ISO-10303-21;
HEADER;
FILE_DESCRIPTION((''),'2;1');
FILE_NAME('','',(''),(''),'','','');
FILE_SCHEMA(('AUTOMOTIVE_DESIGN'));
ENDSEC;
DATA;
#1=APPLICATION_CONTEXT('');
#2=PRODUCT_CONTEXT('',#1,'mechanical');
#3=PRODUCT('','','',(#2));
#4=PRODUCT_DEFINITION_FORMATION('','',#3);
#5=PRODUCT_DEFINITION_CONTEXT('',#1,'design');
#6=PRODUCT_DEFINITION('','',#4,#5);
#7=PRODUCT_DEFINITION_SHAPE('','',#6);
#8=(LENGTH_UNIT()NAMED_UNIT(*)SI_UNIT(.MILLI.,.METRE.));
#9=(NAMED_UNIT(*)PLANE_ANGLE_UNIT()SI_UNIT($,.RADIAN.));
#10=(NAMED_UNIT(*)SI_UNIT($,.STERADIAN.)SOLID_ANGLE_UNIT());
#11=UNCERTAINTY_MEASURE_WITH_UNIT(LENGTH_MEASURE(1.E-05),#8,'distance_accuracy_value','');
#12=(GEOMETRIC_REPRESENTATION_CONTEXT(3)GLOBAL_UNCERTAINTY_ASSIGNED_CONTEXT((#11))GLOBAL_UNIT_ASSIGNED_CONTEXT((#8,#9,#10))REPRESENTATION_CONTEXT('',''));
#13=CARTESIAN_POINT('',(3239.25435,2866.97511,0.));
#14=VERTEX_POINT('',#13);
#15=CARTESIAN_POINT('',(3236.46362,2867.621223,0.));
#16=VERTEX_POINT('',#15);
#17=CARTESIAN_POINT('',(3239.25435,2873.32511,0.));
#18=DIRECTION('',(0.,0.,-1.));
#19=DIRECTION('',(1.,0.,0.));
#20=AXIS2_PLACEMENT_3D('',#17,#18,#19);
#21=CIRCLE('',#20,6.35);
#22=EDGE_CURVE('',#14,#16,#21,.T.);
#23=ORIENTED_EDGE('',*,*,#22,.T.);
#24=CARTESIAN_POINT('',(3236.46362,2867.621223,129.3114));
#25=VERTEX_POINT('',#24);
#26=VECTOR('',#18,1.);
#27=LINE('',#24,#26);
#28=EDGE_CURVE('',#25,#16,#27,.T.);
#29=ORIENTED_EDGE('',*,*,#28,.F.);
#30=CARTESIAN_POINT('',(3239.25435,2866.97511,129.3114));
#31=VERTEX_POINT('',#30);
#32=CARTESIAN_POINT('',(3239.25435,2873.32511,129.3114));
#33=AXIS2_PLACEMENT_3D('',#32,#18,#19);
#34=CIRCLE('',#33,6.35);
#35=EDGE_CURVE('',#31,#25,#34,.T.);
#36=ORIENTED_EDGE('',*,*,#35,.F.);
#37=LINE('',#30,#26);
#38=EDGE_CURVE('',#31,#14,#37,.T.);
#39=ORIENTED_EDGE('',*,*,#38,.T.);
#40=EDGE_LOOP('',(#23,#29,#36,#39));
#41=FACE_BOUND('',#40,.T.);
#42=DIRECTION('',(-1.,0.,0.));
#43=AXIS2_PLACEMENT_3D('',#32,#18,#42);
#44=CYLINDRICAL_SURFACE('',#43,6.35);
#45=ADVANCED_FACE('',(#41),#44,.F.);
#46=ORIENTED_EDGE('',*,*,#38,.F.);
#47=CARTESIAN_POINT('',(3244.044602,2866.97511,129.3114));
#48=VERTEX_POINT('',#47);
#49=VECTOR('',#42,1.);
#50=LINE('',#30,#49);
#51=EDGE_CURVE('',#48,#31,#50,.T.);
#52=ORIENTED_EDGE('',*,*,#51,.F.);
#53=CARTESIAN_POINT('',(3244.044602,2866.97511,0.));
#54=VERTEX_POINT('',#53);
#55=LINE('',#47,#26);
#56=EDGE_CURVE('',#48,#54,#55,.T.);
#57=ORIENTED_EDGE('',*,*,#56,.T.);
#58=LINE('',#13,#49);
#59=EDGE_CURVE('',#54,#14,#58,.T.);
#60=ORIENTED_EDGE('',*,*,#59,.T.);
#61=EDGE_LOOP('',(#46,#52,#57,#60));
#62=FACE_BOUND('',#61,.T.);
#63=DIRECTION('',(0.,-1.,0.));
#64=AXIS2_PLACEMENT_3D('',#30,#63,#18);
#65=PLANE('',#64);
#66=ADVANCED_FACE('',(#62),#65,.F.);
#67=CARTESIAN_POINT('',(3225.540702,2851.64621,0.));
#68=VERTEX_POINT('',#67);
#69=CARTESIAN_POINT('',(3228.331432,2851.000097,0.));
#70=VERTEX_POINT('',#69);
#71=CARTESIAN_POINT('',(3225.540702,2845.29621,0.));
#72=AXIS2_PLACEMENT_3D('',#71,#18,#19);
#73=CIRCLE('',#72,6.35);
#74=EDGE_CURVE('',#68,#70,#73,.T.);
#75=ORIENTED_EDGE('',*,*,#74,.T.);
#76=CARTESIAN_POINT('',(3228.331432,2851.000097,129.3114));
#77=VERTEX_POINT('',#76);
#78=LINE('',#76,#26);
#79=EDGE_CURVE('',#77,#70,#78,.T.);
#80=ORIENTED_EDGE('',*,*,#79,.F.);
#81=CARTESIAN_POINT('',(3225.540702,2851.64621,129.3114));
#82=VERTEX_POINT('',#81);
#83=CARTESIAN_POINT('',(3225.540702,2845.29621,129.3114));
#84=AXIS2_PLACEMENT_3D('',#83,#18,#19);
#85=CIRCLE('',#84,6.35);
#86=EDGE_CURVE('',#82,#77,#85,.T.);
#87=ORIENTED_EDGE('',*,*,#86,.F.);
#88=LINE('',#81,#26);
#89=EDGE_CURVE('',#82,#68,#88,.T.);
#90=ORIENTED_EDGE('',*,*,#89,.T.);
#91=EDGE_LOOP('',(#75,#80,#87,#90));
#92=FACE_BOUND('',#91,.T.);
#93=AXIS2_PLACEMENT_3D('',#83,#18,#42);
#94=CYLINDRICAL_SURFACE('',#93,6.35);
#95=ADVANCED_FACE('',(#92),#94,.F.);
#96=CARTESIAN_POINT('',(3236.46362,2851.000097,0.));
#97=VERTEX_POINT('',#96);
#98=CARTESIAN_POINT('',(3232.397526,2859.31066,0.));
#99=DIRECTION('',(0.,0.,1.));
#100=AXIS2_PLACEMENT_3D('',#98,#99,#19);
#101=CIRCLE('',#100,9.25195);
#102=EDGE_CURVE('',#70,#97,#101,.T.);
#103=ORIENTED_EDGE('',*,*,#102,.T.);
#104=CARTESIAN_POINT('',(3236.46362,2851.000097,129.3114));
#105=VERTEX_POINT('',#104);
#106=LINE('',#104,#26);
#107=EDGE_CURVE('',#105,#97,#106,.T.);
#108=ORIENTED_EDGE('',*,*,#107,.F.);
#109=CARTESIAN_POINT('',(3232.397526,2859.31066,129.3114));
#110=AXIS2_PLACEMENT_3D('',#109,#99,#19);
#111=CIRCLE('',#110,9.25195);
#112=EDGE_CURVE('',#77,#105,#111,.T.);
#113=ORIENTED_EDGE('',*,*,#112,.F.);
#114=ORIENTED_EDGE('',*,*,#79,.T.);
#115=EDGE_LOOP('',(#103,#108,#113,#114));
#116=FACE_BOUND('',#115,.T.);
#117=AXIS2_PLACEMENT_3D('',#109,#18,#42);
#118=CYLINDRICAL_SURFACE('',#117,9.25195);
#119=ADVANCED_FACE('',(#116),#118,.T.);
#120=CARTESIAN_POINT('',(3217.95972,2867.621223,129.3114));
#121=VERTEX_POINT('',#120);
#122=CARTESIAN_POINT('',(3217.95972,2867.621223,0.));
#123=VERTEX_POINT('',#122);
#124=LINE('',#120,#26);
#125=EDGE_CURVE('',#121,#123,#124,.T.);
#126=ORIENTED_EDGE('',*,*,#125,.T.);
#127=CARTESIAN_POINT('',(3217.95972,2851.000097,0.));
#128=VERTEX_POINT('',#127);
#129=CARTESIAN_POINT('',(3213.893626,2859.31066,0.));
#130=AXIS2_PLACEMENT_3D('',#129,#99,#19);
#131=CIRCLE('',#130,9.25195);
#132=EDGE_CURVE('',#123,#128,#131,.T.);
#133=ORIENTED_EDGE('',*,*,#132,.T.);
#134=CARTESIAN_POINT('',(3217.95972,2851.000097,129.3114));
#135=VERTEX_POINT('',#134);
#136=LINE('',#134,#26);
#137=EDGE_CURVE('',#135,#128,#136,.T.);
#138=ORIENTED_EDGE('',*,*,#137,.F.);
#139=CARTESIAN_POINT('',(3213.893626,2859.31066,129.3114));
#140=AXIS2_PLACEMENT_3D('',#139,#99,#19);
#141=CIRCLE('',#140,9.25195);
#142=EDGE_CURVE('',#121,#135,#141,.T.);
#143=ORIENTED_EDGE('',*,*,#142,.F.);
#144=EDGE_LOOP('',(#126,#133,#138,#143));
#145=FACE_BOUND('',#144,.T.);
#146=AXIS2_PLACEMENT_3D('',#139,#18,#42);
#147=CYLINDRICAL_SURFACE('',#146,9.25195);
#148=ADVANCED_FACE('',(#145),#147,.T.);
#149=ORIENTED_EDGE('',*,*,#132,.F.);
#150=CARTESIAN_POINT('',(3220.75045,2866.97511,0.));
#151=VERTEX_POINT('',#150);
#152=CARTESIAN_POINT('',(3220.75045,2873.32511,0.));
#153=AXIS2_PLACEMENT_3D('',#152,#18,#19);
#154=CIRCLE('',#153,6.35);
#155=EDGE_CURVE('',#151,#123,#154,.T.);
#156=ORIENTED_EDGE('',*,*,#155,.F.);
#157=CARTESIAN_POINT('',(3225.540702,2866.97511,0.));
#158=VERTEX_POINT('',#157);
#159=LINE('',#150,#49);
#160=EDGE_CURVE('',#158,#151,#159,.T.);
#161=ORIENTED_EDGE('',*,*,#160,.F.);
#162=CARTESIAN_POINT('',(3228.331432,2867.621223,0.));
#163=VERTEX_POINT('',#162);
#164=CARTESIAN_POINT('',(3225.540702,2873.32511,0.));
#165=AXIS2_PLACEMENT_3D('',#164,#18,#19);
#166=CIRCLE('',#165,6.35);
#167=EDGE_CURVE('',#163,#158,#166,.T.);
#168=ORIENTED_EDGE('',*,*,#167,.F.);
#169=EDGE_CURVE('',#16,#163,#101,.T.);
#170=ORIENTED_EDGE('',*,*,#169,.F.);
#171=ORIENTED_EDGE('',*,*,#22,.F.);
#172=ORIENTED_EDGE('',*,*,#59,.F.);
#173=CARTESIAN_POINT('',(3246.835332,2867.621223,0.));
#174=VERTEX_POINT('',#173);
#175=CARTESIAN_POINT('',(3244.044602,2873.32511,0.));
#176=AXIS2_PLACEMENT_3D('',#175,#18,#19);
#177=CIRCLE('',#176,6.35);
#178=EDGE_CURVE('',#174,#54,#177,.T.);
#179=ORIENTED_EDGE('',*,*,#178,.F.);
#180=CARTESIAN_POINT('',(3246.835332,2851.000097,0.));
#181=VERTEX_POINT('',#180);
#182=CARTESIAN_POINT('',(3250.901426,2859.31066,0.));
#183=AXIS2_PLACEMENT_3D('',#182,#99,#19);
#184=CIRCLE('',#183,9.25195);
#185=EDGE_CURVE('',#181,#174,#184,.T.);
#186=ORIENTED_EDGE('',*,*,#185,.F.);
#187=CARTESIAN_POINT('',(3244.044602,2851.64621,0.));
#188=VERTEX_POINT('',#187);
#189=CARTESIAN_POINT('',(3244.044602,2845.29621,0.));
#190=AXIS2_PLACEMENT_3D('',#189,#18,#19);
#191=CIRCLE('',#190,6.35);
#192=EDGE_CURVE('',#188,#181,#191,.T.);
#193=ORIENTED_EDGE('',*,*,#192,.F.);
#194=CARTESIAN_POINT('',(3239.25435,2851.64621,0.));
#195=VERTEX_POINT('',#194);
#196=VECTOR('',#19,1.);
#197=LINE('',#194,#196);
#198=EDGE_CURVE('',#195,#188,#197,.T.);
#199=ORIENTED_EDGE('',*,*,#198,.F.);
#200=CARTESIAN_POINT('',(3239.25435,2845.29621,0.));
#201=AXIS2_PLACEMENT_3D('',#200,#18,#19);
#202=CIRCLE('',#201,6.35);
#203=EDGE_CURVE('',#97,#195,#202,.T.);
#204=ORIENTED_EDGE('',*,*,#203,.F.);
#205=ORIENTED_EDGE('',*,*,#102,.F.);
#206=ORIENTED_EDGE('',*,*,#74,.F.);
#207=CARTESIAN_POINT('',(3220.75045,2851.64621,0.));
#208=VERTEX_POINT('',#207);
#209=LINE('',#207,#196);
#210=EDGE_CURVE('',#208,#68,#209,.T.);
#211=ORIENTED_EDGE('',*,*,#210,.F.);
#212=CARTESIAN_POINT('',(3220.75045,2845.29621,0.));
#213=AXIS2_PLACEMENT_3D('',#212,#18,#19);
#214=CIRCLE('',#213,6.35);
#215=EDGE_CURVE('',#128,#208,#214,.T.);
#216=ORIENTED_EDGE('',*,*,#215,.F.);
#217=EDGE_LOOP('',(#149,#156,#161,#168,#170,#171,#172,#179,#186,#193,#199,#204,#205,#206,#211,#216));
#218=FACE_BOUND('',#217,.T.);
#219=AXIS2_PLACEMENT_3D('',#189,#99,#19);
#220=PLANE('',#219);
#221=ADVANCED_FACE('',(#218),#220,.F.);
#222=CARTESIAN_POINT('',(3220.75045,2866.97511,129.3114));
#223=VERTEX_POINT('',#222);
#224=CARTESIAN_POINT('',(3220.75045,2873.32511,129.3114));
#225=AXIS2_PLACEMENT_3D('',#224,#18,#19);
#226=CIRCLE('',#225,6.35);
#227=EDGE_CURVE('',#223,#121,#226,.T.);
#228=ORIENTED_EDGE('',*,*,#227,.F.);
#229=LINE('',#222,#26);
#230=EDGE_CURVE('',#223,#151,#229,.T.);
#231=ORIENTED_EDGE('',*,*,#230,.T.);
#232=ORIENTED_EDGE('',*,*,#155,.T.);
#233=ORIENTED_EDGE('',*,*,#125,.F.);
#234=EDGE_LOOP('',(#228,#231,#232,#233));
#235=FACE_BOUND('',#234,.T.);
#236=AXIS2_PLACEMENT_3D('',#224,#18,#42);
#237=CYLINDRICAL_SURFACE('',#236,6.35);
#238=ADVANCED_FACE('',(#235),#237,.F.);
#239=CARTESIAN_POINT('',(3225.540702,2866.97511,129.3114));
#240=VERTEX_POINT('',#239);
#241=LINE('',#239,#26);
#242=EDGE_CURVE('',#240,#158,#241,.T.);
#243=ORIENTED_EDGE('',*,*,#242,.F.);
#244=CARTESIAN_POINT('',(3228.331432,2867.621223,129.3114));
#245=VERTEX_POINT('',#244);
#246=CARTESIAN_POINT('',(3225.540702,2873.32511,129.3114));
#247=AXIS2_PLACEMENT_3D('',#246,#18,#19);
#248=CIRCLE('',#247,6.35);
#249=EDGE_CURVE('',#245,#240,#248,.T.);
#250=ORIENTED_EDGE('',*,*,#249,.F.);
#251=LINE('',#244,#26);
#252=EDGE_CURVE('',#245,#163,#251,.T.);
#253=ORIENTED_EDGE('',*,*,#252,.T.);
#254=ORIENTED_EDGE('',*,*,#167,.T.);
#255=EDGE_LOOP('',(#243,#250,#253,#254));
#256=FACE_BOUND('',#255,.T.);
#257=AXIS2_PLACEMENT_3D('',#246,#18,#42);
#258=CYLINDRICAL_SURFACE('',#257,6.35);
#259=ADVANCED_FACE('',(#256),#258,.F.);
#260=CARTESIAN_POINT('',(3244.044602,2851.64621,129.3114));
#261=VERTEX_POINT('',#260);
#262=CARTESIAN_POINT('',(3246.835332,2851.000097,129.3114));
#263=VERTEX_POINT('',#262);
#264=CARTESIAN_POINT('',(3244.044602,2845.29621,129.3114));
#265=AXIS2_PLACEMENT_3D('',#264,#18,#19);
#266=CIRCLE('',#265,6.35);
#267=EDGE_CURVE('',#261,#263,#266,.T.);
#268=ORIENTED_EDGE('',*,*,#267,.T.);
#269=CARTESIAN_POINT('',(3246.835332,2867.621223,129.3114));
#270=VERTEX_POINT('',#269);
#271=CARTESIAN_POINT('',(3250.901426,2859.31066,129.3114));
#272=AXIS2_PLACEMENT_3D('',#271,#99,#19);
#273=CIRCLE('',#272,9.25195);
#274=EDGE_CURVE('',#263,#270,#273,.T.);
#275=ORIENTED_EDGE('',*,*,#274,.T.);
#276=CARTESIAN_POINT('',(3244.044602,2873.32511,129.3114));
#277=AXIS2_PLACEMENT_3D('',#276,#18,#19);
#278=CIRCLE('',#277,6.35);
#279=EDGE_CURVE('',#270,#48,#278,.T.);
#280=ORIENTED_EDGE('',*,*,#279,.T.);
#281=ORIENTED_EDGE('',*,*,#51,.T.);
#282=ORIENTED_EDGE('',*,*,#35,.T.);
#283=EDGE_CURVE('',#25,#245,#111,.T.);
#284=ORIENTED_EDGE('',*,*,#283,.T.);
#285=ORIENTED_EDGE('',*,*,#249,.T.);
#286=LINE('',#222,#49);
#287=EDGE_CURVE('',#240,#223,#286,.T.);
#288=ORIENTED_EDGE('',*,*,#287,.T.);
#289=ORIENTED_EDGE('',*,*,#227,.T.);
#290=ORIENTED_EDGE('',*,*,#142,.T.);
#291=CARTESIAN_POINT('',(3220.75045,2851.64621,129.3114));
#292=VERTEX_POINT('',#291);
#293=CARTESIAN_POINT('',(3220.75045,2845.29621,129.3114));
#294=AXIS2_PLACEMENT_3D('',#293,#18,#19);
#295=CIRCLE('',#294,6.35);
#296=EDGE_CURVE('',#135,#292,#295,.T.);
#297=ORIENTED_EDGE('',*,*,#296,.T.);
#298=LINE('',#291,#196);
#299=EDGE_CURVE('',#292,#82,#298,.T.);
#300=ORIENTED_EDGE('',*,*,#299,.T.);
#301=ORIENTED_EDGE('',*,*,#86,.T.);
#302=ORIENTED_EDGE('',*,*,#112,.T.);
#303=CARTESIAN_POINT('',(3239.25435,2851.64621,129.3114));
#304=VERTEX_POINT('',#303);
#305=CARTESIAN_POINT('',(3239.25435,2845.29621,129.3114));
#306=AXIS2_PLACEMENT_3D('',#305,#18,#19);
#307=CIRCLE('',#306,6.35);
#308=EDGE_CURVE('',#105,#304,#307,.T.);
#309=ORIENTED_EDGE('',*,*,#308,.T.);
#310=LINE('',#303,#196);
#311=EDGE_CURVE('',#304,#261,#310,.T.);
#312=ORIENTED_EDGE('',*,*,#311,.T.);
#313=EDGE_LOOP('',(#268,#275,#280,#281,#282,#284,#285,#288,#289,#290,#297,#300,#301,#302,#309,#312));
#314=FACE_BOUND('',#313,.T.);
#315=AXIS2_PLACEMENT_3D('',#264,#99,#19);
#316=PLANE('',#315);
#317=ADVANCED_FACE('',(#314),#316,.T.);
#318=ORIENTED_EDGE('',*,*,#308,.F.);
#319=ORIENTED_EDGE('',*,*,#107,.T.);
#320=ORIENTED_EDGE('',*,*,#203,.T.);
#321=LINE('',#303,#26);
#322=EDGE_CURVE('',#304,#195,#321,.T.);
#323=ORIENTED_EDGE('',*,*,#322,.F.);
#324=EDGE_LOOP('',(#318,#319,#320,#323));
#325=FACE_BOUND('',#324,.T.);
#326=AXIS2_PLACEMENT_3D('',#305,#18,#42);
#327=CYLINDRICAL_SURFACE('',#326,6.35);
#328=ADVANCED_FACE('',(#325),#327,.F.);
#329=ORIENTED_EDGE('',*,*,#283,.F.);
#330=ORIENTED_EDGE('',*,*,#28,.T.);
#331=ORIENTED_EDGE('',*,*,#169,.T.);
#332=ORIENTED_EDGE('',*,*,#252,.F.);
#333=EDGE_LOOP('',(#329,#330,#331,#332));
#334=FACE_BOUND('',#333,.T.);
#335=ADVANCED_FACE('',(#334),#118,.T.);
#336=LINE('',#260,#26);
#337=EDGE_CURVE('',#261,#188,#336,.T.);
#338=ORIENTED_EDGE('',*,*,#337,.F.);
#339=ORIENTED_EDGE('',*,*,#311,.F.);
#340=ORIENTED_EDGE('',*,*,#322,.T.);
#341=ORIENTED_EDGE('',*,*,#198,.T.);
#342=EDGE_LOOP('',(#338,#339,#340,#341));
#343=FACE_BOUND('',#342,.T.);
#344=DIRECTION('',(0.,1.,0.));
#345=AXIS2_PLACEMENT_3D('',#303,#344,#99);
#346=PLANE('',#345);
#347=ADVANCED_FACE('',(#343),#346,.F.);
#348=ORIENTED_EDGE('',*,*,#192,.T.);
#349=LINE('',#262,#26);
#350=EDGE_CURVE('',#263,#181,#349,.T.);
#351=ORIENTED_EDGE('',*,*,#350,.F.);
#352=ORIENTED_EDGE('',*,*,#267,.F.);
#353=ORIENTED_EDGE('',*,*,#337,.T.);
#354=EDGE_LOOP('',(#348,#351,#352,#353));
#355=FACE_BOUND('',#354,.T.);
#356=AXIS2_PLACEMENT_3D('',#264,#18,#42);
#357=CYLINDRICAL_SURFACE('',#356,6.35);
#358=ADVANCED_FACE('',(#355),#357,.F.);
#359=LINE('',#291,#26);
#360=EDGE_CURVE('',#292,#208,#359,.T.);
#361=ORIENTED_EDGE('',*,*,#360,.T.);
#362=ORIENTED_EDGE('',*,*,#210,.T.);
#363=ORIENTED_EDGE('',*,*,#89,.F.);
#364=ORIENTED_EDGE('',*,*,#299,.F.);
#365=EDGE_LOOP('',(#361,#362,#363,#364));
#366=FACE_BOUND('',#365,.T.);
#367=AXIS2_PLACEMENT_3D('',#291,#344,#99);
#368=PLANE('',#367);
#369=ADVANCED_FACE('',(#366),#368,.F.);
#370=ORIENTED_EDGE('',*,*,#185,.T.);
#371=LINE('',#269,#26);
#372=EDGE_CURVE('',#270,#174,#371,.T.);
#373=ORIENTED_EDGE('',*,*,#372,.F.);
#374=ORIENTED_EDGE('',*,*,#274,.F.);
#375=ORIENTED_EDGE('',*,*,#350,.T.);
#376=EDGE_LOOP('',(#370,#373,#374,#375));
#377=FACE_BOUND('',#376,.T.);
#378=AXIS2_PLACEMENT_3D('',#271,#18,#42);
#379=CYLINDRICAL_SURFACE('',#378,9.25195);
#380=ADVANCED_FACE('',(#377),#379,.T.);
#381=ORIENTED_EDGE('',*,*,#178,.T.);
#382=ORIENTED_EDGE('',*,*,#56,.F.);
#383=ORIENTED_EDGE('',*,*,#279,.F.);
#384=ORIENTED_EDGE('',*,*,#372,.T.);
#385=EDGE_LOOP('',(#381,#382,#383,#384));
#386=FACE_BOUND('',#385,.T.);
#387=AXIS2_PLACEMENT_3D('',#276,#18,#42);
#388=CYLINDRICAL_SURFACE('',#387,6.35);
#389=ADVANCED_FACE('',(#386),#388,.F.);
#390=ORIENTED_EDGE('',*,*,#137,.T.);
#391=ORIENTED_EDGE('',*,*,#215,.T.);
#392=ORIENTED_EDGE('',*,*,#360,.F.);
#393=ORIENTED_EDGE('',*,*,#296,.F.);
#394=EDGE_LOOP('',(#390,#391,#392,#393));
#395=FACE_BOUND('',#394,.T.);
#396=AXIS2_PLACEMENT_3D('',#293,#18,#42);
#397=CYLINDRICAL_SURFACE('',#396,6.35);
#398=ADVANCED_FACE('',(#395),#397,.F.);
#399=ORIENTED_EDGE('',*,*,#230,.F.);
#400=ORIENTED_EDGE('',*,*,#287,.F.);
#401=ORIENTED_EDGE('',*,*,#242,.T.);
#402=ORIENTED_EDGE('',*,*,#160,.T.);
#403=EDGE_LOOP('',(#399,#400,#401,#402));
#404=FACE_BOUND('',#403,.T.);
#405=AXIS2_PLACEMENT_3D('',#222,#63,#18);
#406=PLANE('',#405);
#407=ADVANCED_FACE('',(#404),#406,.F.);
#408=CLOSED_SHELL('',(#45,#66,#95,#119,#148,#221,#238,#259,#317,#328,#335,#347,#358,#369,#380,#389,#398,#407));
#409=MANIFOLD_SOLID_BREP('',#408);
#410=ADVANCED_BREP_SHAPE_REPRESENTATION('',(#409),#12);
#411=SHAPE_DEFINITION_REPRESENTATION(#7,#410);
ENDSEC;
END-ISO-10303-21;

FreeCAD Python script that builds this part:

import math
import FreeCAD as App
import Part
import Sketcher

V = App.Vector
Q = App.Units.Quantity

doc = App.newDocument("Part")
body = doc.addObject("PartDesign::Body", "Body")

# Sketch on XY plane
sketch1 = body.newObject("Sketcher::SketchObject", "Sketch")
sketch1.AttachmentSupport = (doc.getObject("XY_Plane"), [""])
sketch1.MapMode = "FlatFace"
sketch1.addGeometry(Part.LineSegment(V(3225.540702, 2866.97511, 0), V(3220.75045, 2866.97511, 0)), False)
sketch1.addGeometry(Part.ArcOfCircle(Part.Circle(V(3220.75045, 2873.32511, 0), V(0, 0, 1), 6.35), math.radians(-116.071031), math.radians(-90)), False)
sketch1.addGeometry(Part.ArcOfCircle(Part.Circle(V(3213.893626, 2859.31066, 0), V(0, 0, 1), 9.25195), math.radians(63.928969), math.radians(296.071031)), False)
sketch1.addGeometry(Part.ArcOfCircle(Part.Circle(V(3220.75045, 2845.29621, 0), V(0, 0, 1), 6.35), math.radians(90), math.radians(116.071031)), False)
sketch1.addGeometry(Part.LineSegment(V(3220.75045, 2851.64621, 0), V(3225.540702, 2851.64621, 0)), False)
sketch1.addGeometry(Part.ArcOfCircle(Part.Circle(V(3225.540702, 2845.29621, 0), V(0, 0, 1), 6.35), math.radians(63.928969), math.radians(90)), False)
sketch1.addGeometry(Part.ArcOfCircle(Part.Circle(V(3232.397526, 2859.31066, 0), V(0, 0, 1), 9.25195), math.radians(-116.071031), math.radians(-63.928969)), False)
sketch1.addGeometry(Part.ArcOfCircle(Part.Circle(V(3239.25435, 2845.29621, 0), V(0, 0, 1), 6.35), math.radians(90), math.radians(116.071031)), False)
sketch1.addGeometry(Part.LineSegment(V(3239.25435, 2851.64621, 0), V(3244.044602, 2851.64621, 0)), False)
sketch1.addGeometry(Part.ArcOfCircle(Part.Circle(V(3244.044602, 2845.29621, 0), V(0, 0, 1), 6.35), math.radians(63.928969), math.radians(90)), False)
sketch1.addGeometry(Part.ArcOfCircle(Part.Circle(V(3250.901426, 2859.31066, 0), V(0, 0, 1), 9.25195), math.radians(-116.071031), math.radians(116.071031)), False)
sketch1.addGeometry(Part.ArcOfCircle(Part.Circle(V(3244.044602, 2873.32511, 0), V(0, 0, 1), 6.35), math.radians(-90), math.radians(-63.928969)), False)
sketch1.addGeometry(Part.LineSegment(V(3244.044602, 2866.97511, 0), V(3239.25435, 2866.97511, 0)), False)
sketch1.addGeometry(Part.ArcOfCircle(Part.Circle(V(3239.25435, 2873.32511, 0), V(0, 0, 1), 6.35), math.radians(-116.071031), math.radians(-90)), False)
sketch1.addGeometry(Part.ArcOfCircle(Part.Circle(V(3232.397526, 2859.31066, 0), V(0, 0, 1), 9.25195), math.radians(63.928969), math.radians(116.071031)), False)
sketch1.addGeometry(Part.ArcOfCircle(Part.Circle(V(3225.540702, 2873.32511, 0), V(0, 0, 1), 6.35), math.radians(-90), math.radians(-63.928969)), False)
sketch1.addConstraint(Sketcher.Constraint("Tangent", 0, 2, 1, 2))
sketch1.addConstraint(Sketcher.Constraint("Tangent", 1, 1, 2, 1))
sketch1.addConstraint(Sketcher.Constraint("Tangent", 2, 2, 3, 2))
sketch1.addConstraint(Sketcher.Constraint("Tangent", 3, 1, 4, 1))
sketch1.addConstraint(Sketcher.Constraint("Tangent", 4, 2, 5, 2))
sketch1.addConstraint(Sketcher.Constraint("Tangent", 5, 1, 6, 1))
sketch1.addConstraint(Sketcher.Constraint("Tangent", 6, 2, 7, 2))
sketch1.addConstraint(Sketcher.Constraint("Tangent", 7, 1, 8, 1))
sketch1.addConstraint(Sketcher.Constraint("Tangent", 8, 2, 9, 2))
sketch1.addConstraint(Sketcher.Constraint("Tangent", 9, 1, 10, 1))
sketch1.addConstraint(Sketcher.Constraint("Tangent", 10, 2, 11, 2))
sketch1.addConstraint(Sketcher.Constraint("Tangent", 11, 1, 12, 1))
sketch1.addConstraint(Sketcher.Constraint("Tangent", 12, 2, 13, 2))
sketch1.addConstraint(Sketcher.Constraint("Tangent", 13, 1, 14, 1))
sketch1.addConstraint(Sketcher.Constraint("Tangent", 14, 2, 15, 2))
sketch1.addConstraint(Sketcher.Constraint("Tangent", 15, 1, 0, 1))
sketch1.addConstraint(Sketcher.Constraint("Horizontal", 0))
sketch1.addConstraint(Sketcher.Constraint("Horizontal", 4))
sketch1.addConstraint(Sketcher.Constraint("Horizontal", 8))
sketch1.addConstraint(Sketcher.Constraint("Horizontal", 12))
sketch1.addConstraint(Sketcher.Constraint("Coincident", 14, 3, 6, 3))
sketch1.addConstraint(Sketcher.Constraint("Equal", 1, 3))
sketch1.addConstraint(Sketcher.Constraint("Equal", 3, 5))
sketch1.addConstraint(Sketcher.Constraint("Equal", 2, 6))
sketch1.addConstraint(Sketcher.Constraint("Equal", 5, 7))
sketch1.addConstraint(Sketcher.Constraint("Equal", 7, 9))
sketch1.addConstraint(Sketcher.Constraint("Equal", 6, 10))
sketch1.addConstraint(Sketcher.Constraint("Equal", 9, 11))
sketch1.addConstraint(Sketcher.Constraint("Equal", 11, 13))
sketch1.addConstraint(Sketcher.Constraint("Equal", 10, 14))
sketch1.addConstraint(Sketcher.Constraint("Equal", 13, 15))
sketch1.addConstraint(Sketcher.Constraint("Horizontal", 2, 3, 6, 3))
sketch1.addConstraint(Sketcher.Constraint("Horizontal", 5, 3, 7, 3))
sketch1.addConstraint(Sketcher.Constraint("Horizontal", 6, 3, 10, 3))
sketch1.addConstraint(Sketcher.Constraint("Horizontal", 1, 3, 11, 3))
sketch1.addConstraint(Sketcher.Constraint("Vertical", 1, 3, 3, 3))
sketch1.addConstraint(Sketcher.Constraint("Equal", 4, 8))
sketch1.addConstraint(Sketcher.Constraint("Radius", 1, Q("0.25 in")))
sketch1.addConstraint(Sketcher.Constraint("Radius", 2, Q("9.25195 mm")))
sketch1.addConstraint(Sketcher.Constraint("DistanceY", 3, 3, 1, 3, Q("1.1035 in")))
sketch1.addConstraint(Sketcher.Constraint("DistanceX", 2, 3, 6, 3, Q("0.7285 in")))
sketch1.addConstraint(Sketcher.Constraint("DistanceX", -1, 1, 5, 3, Q("3225.540702 mm")))
sketch1.addConstraint(Sketcher.Constraint("DistanceY", -1, 1, 1, 3, Q("2873.32511 mm")))
pad1 = body.newObject("PartDesign::Pad", "Pad")
pad1.Profile = sketch1
pad1.Length = Q("5.091 in")

doc.recompute()
